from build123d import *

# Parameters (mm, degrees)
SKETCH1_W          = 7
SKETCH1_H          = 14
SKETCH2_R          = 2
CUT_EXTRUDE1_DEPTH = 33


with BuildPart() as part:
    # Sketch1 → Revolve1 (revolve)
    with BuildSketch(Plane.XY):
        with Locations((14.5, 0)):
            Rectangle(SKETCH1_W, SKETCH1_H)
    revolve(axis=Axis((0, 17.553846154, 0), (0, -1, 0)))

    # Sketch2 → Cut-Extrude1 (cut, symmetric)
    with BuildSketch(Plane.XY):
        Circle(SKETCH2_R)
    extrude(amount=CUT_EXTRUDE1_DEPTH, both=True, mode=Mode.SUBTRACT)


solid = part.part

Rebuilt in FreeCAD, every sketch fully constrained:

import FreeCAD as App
import Part
import Sketcher
from FreeCAD import Vector
Q = App.Units.Quantity

doc = App.newDocument("Part")
body = doc.addObject("PartDesign::Body", "Body")

# Sketch on XY plane
sketch1 = body.newObject("Sketcher::SketchObject", "Sketch")
sketch1.AttachmentSupport = (doc.getObject("XY_Plane"), [""])
sketch1.MapMode = "FlatFace"
sketch1.addGeometry([
    Part.LineSegment(Vector(11, 7, 0), Vector(11, -7, 0)),
    Part.LineSegment(Vector(11, -7, 0), Vector(18, -7, 0)),
    Part.LineSegment(Vector(18, -7, 0), Vector(18, 7, 0)),
    Part.LineSegment(Vector(18, 7, 0), Vector(11, 7, 0)),
], False)
sketch1.addConstraint([
    Sketcher.Constraint("Coincident", 0, 2, 1, 1),
    Sketcher.Constraint("Coincident", 1, 2, 2, 1),
    Sketcher.Constraint("Coincident", 2, 2, 3, 1),
    Sketcher.Constraint("Coincident", 3, 2, 0, 1),
    Sketcher.Constraint("Vertical", 0),
    Sketcher.Constraint("Horizontal", 1),
    Sketcher.Constraint("Vertical", 2),
    Sketcher.Constraint("Horizontal", 3),
    Sketcher.Constraint("DistanceX", 1, 1, 1, 2, Q("7 mm")),
    Sketcher.Constraint("DistanceY", 0, 2, 0, 1, Q("14 mm")),
    Sketcher.Constraint("DistanceX", -1, 1, 0, 2, Q("11 mm")),
    Sketcher.Constraint("DistanceY", 0, 2, -1, 1, Q("7 mm")),
])
revolution = body.newObject("PartDesign::Revolution", "Revolution")
revolution.Profile = sketch1
revolution.ReferenceAxis = (sketch1, ["V_Axis"])
revolution.Angle = 360

# Sketch on XY plane
sketch2 = body.newObject("Sketcher::SketchObject", "Sketch001")
sketch2.AttachmentSupport = (doc.getObject("XY_Plane"), [""])
sketch2.MapMode = "FlatFace"
sketch2.addGeometry(Part.Circle(Vector(0, 0, 0), Vector(0, 0, 1), 2), False)
sketch2.addConstraint([
    Sketcher.Constraint("Coincident", 0, 3, -1, 1),
    Sketcher.Constraint("Diameter", 0, Q("4 mm")),
])
pocket1 = body.newObject("PartDesign::Pocket", "Pocket")
pocket1.Profile = sketch2
pocket1.Length = 66
pocket1.Midplane = True

doc.recompute()
